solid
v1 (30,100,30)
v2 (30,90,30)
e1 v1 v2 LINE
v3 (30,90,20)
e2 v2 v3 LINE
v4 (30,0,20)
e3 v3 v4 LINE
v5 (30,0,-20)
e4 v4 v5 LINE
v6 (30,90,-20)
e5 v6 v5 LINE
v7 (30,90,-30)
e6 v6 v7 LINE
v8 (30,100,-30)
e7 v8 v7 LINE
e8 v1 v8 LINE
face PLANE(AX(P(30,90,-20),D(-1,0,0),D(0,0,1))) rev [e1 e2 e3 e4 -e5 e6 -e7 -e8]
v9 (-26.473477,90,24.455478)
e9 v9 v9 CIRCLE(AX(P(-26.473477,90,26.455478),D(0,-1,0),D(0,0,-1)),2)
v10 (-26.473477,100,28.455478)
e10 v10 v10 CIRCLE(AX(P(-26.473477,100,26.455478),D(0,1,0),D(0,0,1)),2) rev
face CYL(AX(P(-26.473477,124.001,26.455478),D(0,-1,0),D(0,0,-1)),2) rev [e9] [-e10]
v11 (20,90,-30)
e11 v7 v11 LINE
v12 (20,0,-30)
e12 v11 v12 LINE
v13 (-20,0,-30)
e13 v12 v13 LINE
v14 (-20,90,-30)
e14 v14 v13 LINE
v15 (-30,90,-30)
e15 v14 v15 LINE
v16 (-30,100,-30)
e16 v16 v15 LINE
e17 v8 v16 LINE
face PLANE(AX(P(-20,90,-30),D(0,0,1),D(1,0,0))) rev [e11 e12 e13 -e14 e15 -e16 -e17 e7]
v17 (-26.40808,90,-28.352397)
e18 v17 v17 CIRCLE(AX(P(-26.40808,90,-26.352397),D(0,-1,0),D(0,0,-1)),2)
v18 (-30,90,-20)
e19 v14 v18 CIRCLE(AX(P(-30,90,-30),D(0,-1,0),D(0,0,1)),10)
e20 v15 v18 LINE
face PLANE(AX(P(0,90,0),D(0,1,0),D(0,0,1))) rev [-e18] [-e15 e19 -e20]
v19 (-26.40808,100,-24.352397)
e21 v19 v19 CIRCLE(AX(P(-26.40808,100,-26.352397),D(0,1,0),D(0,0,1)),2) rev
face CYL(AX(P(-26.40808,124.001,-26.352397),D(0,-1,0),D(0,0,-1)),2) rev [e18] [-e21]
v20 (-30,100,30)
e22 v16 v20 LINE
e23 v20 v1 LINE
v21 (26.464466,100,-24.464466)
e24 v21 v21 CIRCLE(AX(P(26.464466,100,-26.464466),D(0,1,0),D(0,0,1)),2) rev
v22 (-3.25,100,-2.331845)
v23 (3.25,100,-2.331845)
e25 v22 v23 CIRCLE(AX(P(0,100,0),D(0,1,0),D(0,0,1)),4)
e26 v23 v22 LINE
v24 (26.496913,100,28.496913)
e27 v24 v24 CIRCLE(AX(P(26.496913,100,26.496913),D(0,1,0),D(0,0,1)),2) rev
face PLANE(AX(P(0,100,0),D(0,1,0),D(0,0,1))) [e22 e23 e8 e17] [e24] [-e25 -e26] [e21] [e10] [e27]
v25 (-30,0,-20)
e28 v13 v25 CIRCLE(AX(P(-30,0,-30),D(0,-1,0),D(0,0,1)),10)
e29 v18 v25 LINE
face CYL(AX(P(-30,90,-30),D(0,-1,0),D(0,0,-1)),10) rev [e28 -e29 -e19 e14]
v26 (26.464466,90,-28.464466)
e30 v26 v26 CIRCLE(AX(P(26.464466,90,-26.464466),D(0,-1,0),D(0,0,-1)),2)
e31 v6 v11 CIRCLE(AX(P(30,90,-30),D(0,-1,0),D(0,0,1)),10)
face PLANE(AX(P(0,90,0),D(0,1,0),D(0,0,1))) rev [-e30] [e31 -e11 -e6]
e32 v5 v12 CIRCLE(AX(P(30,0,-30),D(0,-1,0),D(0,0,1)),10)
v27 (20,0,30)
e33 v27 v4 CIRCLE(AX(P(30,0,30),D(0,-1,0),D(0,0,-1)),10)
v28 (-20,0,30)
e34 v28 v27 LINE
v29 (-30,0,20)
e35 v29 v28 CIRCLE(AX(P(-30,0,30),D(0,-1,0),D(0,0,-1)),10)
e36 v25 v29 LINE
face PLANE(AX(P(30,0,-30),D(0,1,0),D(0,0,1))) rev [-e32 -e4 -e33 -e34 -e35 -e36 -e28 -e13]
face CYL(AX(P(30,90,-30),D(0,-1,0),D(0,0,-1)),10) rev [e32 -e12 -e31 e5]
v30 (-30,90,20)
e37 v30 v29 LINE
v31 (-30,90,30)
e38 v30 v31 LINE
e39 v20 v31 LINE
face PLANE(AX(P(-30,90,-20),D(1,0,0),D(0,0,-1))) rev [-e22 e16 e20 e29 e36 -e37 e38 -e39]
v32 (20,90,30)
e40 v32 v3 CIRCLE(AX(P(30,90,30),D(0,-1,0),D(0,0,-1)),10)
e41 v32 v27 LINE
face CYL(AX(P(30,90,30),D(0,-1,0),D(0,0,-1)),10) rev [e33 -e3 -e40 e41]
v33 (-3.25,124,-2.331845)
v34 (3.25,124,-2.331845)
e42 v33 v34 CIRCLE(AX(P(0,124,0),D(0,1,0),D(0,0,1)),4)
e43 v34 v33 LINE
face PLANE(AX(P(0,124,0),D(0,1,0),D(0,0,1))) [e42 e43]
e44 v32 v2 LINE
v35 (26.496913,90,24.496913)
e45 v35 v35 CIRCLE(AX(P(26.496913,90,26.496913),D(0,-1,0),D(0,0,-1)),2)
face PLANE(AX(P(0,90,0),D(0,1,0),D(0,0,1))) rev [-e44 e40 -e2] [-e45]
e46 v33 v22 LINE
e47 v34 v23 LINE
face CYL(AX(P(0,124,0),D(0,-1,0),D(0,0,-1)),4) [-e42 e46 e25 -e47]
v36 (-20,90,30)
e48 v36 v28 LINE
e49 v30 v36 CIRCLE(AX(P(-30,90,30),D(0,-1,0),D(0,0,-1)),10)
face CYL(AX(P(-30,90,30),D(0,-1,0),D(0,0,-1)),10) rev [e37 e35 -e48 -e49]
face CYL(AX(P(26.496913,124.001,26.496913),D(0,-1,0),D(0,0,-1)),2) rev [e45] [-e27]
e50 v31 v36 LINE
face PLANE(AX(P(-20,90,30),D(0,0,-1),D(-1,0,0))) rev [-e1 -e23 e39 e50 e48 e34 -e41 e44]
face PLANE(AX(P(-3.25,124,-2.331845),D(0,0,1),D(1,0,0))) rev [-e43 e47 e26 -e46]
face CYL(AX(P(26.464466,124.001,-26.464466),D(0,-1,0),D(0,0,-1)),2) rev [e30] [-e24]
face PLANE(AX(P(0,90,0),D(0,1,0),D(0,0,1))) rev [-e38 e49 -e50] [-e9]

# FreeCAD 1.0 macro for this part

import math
import FreeCAD as App
import Part
import Sketcher

doc = App.newDocument("Part")
body = doc.addObject("PartDesign::Body", "Body")

# Sketch on XZ plane
sketch1 = body.newObject("Sketcher::SketchObject", "Sketch")
sketch1.AttachmentSupport = (doc.getObject("XZ_Plane"), [""])
sketch1.MapMode = "FlatFace"
sketch1.addGeometry(Part.LineSegment(App.Vector(20, -30, 0), App.Vector(-20, -30, 0)), False)
sketch1.addGeometry(Part.ArcOfCircle(Part.Circle(App.Vector(-30, -30, 0), App.Vector(0, 0, 1), 10), math.radians(0), math.radians(90)), False)
sketch1.addGeometry(Part.LineSegment(App.Vector(-30, -20, 0), App.Vector(-30, 20, 0)), False)
sketch1.addGeometry(Part.ArcOfCircle(Part.Circle(App.Vector(-30, 30, 0), App.Vector(0, 0, 1), 10), math.radians(-90), math.radians(0)), False)
sketch1.addGeometry(Part.LineSegment(App.Vector(-20, 30, 0), App.Vector(20, 30, 0)), False)
sketch1.addGeometry(Part.ArcOfCircle(Part.Circle(App.Vector(30, 30, 0), App.Vector(0, 0, 1), 10), math.radians(180), math.radians(270)), False)
sketch1.addGeometry(Part.LineSegment(App.Vector(30, 20, 0), App.Vector(30, -20, 0)), False)
sketch1.addGeometry(Part.ArcOfCircle(Part.Circle(App.Vector(30, -30, 0), App.Vector(0, 0, 1), 10), math.radians(90), math.radians(180)), False)
sketch1.addConstraint(Sketcher.Constraint("Coincident", 0, 2, 1, 1))
sketch1.addConstraint(Sketcher.Constraint("Coincident", 1, 2, 2, 1))
sketch1.addConstraint(Sketcher.Constraint("Coincident", 2, 2, 3, 1))
sketch1.addConstraint(Sketcher.Constraint("Coincident", 3, 2, 4, 1))
sketch1.addConstraint(Sketcher.Constraint("Coincident", 4, 2, 5, 1))
sketch1.addConstraint(Sketcher.Constraint("Coincident", 5, 2, 6, 1))
sketch1.addConstraint(Sketcher.Constraint("Coincident", 6, 2, 7, 1))
sketch1.addConstraint(Sketcher.Constraint("Coincident", 7, 2, 0, 1))
sketch1.addConstraint(Sketcher.Constraint("Horizontal", 0))
sketch1.addConstraint(Sketcher.Constraint("Vertical", 2))
sketch1.addConstraint(Sketcher.Constraint("Horizontal", 4))
sketch1.addConstraint(Sketcher.Constraint("Vertical", 6))
sketch1.addConstraint(Sketcher.Constraint("Equal", 1, 3))
sketch1.addConstraint(Sketcher.Constraint("Equal", 3, 5))
sketch1.addConstraint(Sketcher.Constraint("Equal", 5, 7))
sketch1.addConstraint(Sketcher.Constraint("Symmetric", 1, 3, 5, 3, -1, 1))
sketch1.addConstraint(Sketcher.Constraint("Symmetric", 3, 3, 7, 3, -1, 1))
sketch1.addConstraint(Sketcher.Constraint("Symmetric", 3, 3, 5, 3, -2))
sketch1.addConstraint(Sketcher.Constraint("Horizontal", 7, 3, 0, 2))
sketch1.addConstraint(Sketcher.Constraint("Horizontal", 5, 3, 3, 2))
sketch1.addConstraint(Sketcher.Constraint("Vertical", 3, 3, 1, 2))
sketch1.addConstraint(Sketcher.Constraint("Vertical", 7, 3, 5, 2))
sketch1.addConstraint(Sketcher.Constraint("Equal", 4, 2))
sketch1.addConstraint(Sketcher.Constraint("Radius", 1, 10.0))
sketch1.addConstraint(Sketcher.Constraint("DistanceX", 0, 2, 0, 1, 40.0))
pad1 = body.newObject("PartDesign::Pad", "Pad")
pad1.Profile = sketch1
pad1.Length = 90
pad1.Reversed = True

# Sketch on XZ plane
sketch2 = body.newObject("Sketcher::SketchObject", "Sketch001")
sketch2.AttachmentSupport = (doc.getObject("XZ_Plane"), [""])
sketch2.MapMode = "FlatFace"
sketch2.AttachmentOffset = App.Placement(App.Vector(0, 0, -90), App.Rotation())
sketch2.addGeometry(Part.LineSegment(App.Vector(-30, -30, 0), App.Vector(-30, 30, 0)), False)
sketch2.addGeometry(Part.LineSegment(App.Vector(-30, 30, 0), App.Vector(30, 30, 0)), False)
sketch2.addGeometry(Part.LineSegment(App.Vector(30, 30, 0), App.Vector(30, -30, 0)), False)
sketch2.addGeometry(Part.LineSegment(App.Vector(30, -30, 0), App.Vector(-30, -30, 0)), False)
sketch2.addConstraint(Sketcher.Constraint("Coincident", 0, 2, 1, 1))
sketch2.addConstraint(Sketcher.Constraint("Coincident", 1, 2, 2, 1))
sketch2.addConstraint(Sketcher.Constraint("Coincident", 2, 2, 3, 1))
sketch2.addConstraint(Sketcher.Constraint("Coincident", 3, 2, 0, 1))
sketch2.addConstraint(Sketcher.Constraint("Vertical", 0))
sketch2.addConstraint(Sketcher.Constraint("Horizontal", 1))
sketch2.addConstraint(Sketcher.Constraint("Vertical", 2))
sketch2.addConstraint(Sketcher.Constraint("Horizontal", 3))
sketch2.addConstraint(Sketcher.Constraint("Symmetric", 0, 2, 2, 2, -1, 1))
sketch2.addConstraint(Sketcher.Constraint("Equal", 3, 0))
sketch2.addConstraint(Sketcher.Constraint("DistanceX", 1, 1, 1, 2, 60.0))
pad2 = body.newObject("PartDesign::Pad", "Pad001")
pad2.Profile = sketch2
pad2.Length = 10
pad2.Reversed = True

# Sketch on XZ plane
sketch3 = body.newObject("Sketcher::SketchObject", "Sketch002")
sketch3.AttachmentSupport = (doc.getObject("XZ_Plane"), [""])
sketch3.MapMode = "FlatFace"
sketch3.AttachmentOffset = App.Placement(App.Vector(0, 0, -100), App.Rotation())
sketch3.addGeometry(Part.LineSegment(App.Vector(3.2, -2.3, 0), App.Vector(-3.2, -2.3, 0)), False)
sketch3.addGeometry(Part.ArcOfCircle(Part.Circle(App.Vector(0, 0, 0), App.Vector(0, 0, 1), 4), math.radians(-36), math.radians(216)), False)
sketch3.addConstraint(Sketcher.Constraint("Coincident", 0, 1, 1, 1))
sketch3.addConstraint(Sketcher.Constraint("Coincident", 1, 2, 0, 2))
sketch3.addConstraint(Sketcher.Constraint("Horizontal", 0))
sketch3.addConstraint(Sketcher.Constraint("Coincident", 1, 3, -1, 1))
sketch3.addConstraint(Sketcher.Constraint("Radius", 1, 4.0))
sketch3.addConstraint(Sketcher.Constraint("DistanceX", 0, 2, 0, 1, 6.5))
pad3 = body.newObject("PartDesign::Pad", "Pad002")
pad3.Profile = sketch3
pad3.Length = 24
pad3.Reversed = True

# Sketch on XZ plane
sketch4 = body.newObject("Sketcher::SketchObject", "Sketch003")
sketch4.AttachmentSupport = (doc.getObject("XZ_Plane"), [""])
sketch4.MapMode = "FlatFace"
sketch4.AttachmentOffset = App.Placement(App.Vector(0, 0, -90), App.Rotation())
sketch4.addGeometry(Part.Circle(App.Vector(-26.4, -26.4, 0), App.Vector(0, 0, 1), 2), False)
sketch4.addConstraint(Sketcher.Constraint("Diameter", 0, 4.0))
sketch4.addConstraint(Sketcher.Constraint("DistanceX", 0, 3, -1, 1, 26.40808))
sketch4.addConstraint(Sketcher.Constraint("DistanceY", 0, 3, -1, 1, 26.352397))
pocket1 = body.newObject("PartDesign::Pocket", "Pocket")
pocket1.Profile = sketch4
pocket1.Type = "UpToFirst"

# Sketch on XZ plane
sketch5 = body.newObject("Sketcher::SketchObject", "Sketch004")
sketch5.AttachmentSupport = (doc.getObject("XZ_Plane"), [""])
sketch5.MapMode = "FlatFace"
sketch5.AttachmentOffset = App.Placement(App.Vector(0, 0, -90), App.Rotation())
sketch5.addGeometry(Part.Circle(App.Vector(-26.5, 26.5, 0), App.Vector(0, 0, 1), 2), False)
sketch5.addConstraint(Sketcher.Constraint("Diameter", 0, 4.0))
sketch5.addConstraint(Sketcher.Constraint("DistanceX", 0, 3, -1, 1, 26.473477))
sketch5.addConstraint(Sketcher.Constraint("DistanceY", -1, 1, 0, 3, 26.455478))
pocket2 = body.newObject("PartDesign::Pocket", "Pocket001")
pocket2.Profile = sketch5
pocket2.Type = "UpToFirst"

# Sketch on XZ plane
sketch6 = body.newObject("Sketcher::SketchObject", "Sketch005")
sketch6.AttachmentSupport = (doc.getObject("XZ_Plane"), [""])
sketch6.MapMode = "FlatFace"
sketch6.AttachmentOffset = App.Placement(App.Vector(0, 0, -90), App.Rotation())
sketch6.addGeometry(Part.Circle(App.Vector(26.5, 26.5, 0), App.Vector(0, 0, 1), 2), False)
sketch6.addConstraint(Sketcher.Constraint("Diameter", 0, 4.0))
sketch6.addConstraint(Sketcher.Constraint("DistanceX", -1, 1, 0, 3, 26.496913))
sketch6.addConstraint(Sketcher.Constraint("DistanceY", -1, 1, 0, 3, 26.496913))
pocket3 = body.newObject("PartDesign::Pocket", "Pocket002")
pocket3.Profile = sketch6
pocket3.Type = "UpToFirst"

# Sketch on XZ plane
sketch7 = body.newObject("Sketcher::SketchObject", "Sketch006")
sketch7.AttachmentSupport = (doc.getObject("XZ_Plane"), [""])
sketch7.MapMode = "FlatFace"
sketch7.AttachmentOffset = App.Placement(App.Vector(0, 0, -90), App.Rotation())
sketch7.addGeometry(Part.Circle(App.Vector(26.5, -26.5, 0), App.Vector(0, 0, 1), 2), False)
sketch7.addConstraint(Sketcher.Constraint("Diameter", 0, 4.0))
sketch7.addConstraint(Sketcher.Constraint("DistanceX", -1, 1, 0, 3, 26.464466))
sketch7.addConstraint(Sketcher.Constraint("DistanceY", 0, 3, -1, 1, 26.464466))
pocket4 = body.newObject("PartDesign::Pocket", "Pocket003")
pocket4.Profile = sketch7
pocket4.Type = "UpToFirst"

doc.recompute()
